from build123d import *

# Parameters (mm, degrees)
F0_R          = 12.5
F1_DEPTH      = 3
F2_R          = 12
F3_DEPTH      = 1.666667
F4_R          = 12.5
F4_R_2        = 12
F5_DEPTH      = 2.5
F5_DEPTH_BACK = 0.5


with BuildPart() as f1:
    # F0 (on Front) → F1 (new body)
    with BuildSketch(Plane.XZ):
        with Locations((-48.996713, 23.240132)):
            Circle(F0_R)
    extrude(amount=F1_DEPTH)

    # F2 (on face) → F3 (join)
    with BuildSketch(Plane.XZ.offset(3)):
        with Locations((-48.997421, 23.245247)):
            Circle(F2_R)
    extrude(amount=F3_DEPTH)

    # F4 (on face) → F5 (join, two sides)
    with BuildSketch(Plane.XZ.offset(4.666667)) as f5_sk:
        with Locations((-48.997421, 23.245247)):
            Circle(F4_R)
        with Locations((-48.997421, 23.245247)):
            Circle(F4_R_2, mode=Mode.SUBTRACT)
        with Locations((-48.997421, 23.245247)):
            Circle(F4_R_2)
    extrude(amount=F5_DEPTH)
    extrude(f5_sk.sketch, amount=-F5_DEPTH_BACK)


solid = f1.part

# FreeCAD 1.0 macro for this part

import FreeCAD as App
import Part
import Sketcher

V = App.Vector

doc = App.newDocument("Part")
body = doc.addObject("PartDesign::Body", "Body")

# Sketch on XZ plane
sketch1 = body.newObject("Sketcher::SketchObject", "Sketch")
sketch1.AttachmentSupport = (doc.getObject("XZ_Plane"), [""])
sketch1.MapMode = "FlatFace"
sketch1.addGeometry(Part.Circle(V(-49, 23, 0), V(0, 0, 1), 12), False)
sketch1.addConstraint([
    Sketcher.Constraint("Diameter", 0, 25.0),
    Sketcher.Constraint("DistanceY", -1, 1, 0, 3, 23.240132),
    Sketcher.Constraint("DistanceX", 0, 3, -1, 1, 48.996713),
])
pad1 = body.newObject("PartDesign::Pad", "Pad")
pad1.Profile = sketch1
pad1.Length = 3

# Sketch on XZ plane
sketch2 = body.newObject("Sketcher::SketchObject", "Sketch001")
sketch2.AttachmentSupport = (doc.getObject("XZ_Plane"), [""])
sketch2.MapMode = "FlatFace"
sketch2.AttachmentOffset = App.Placement(V(0, 0, 3), App.Rotation())
sketch2.addGeometry(Part.Circle(V(-49, 23, 0), V(0, 0, 1), 12), False)
sketch2.addConstraint([
    Sketcher.Constraint("Diameter", 0, 24.0),
    Sketcher.Constraint("DistanceX", 0, 3, -1, 1, 48.997421),
    Sketcher.Constraint("DistanceY", -1, 1, 0, 3, 23.245247),
])
pad2 = body.newObject("PartDesign::Pad", "Pad001")
pad2.Profile = sketch2
pad2.Length = 1.666667

# Sketch on XZ plane
sketch3 = body.newObject("Sketcher::SketchObject", "Sketch002")
sketch3.AttachmentSupport = (doc.getObject("XZ_Plane"), [""])
sketch3.MapMode = "FlatFace"
sketch3.AttachmentOffset = App.Placement(V(0, 0, 4.666667), App.Rotation())
sketch3.addGeometry(Part.Circle(V(-49, 23, 0), V(0, 0, 1), 12), False)
sketch3.addConstraint([
    Sketcher.Constraint("Diameter", 0, 25.0),
    Sketcher.Constraint("DistanceX", 0, 3, -1, 1, 48.997421),
    Sketcher.Constraint("DistanceY", -1, 1, 0, 3, 23.245247),
])
pad3 = body.newObject("PartDesign::Pad", "Pad002")
pad3.Profile = sketch3
pad3.Type = "TwoLengths"
pad3.Length = 2.5
pad3.Length2 = 0.5

doc.recompute()
